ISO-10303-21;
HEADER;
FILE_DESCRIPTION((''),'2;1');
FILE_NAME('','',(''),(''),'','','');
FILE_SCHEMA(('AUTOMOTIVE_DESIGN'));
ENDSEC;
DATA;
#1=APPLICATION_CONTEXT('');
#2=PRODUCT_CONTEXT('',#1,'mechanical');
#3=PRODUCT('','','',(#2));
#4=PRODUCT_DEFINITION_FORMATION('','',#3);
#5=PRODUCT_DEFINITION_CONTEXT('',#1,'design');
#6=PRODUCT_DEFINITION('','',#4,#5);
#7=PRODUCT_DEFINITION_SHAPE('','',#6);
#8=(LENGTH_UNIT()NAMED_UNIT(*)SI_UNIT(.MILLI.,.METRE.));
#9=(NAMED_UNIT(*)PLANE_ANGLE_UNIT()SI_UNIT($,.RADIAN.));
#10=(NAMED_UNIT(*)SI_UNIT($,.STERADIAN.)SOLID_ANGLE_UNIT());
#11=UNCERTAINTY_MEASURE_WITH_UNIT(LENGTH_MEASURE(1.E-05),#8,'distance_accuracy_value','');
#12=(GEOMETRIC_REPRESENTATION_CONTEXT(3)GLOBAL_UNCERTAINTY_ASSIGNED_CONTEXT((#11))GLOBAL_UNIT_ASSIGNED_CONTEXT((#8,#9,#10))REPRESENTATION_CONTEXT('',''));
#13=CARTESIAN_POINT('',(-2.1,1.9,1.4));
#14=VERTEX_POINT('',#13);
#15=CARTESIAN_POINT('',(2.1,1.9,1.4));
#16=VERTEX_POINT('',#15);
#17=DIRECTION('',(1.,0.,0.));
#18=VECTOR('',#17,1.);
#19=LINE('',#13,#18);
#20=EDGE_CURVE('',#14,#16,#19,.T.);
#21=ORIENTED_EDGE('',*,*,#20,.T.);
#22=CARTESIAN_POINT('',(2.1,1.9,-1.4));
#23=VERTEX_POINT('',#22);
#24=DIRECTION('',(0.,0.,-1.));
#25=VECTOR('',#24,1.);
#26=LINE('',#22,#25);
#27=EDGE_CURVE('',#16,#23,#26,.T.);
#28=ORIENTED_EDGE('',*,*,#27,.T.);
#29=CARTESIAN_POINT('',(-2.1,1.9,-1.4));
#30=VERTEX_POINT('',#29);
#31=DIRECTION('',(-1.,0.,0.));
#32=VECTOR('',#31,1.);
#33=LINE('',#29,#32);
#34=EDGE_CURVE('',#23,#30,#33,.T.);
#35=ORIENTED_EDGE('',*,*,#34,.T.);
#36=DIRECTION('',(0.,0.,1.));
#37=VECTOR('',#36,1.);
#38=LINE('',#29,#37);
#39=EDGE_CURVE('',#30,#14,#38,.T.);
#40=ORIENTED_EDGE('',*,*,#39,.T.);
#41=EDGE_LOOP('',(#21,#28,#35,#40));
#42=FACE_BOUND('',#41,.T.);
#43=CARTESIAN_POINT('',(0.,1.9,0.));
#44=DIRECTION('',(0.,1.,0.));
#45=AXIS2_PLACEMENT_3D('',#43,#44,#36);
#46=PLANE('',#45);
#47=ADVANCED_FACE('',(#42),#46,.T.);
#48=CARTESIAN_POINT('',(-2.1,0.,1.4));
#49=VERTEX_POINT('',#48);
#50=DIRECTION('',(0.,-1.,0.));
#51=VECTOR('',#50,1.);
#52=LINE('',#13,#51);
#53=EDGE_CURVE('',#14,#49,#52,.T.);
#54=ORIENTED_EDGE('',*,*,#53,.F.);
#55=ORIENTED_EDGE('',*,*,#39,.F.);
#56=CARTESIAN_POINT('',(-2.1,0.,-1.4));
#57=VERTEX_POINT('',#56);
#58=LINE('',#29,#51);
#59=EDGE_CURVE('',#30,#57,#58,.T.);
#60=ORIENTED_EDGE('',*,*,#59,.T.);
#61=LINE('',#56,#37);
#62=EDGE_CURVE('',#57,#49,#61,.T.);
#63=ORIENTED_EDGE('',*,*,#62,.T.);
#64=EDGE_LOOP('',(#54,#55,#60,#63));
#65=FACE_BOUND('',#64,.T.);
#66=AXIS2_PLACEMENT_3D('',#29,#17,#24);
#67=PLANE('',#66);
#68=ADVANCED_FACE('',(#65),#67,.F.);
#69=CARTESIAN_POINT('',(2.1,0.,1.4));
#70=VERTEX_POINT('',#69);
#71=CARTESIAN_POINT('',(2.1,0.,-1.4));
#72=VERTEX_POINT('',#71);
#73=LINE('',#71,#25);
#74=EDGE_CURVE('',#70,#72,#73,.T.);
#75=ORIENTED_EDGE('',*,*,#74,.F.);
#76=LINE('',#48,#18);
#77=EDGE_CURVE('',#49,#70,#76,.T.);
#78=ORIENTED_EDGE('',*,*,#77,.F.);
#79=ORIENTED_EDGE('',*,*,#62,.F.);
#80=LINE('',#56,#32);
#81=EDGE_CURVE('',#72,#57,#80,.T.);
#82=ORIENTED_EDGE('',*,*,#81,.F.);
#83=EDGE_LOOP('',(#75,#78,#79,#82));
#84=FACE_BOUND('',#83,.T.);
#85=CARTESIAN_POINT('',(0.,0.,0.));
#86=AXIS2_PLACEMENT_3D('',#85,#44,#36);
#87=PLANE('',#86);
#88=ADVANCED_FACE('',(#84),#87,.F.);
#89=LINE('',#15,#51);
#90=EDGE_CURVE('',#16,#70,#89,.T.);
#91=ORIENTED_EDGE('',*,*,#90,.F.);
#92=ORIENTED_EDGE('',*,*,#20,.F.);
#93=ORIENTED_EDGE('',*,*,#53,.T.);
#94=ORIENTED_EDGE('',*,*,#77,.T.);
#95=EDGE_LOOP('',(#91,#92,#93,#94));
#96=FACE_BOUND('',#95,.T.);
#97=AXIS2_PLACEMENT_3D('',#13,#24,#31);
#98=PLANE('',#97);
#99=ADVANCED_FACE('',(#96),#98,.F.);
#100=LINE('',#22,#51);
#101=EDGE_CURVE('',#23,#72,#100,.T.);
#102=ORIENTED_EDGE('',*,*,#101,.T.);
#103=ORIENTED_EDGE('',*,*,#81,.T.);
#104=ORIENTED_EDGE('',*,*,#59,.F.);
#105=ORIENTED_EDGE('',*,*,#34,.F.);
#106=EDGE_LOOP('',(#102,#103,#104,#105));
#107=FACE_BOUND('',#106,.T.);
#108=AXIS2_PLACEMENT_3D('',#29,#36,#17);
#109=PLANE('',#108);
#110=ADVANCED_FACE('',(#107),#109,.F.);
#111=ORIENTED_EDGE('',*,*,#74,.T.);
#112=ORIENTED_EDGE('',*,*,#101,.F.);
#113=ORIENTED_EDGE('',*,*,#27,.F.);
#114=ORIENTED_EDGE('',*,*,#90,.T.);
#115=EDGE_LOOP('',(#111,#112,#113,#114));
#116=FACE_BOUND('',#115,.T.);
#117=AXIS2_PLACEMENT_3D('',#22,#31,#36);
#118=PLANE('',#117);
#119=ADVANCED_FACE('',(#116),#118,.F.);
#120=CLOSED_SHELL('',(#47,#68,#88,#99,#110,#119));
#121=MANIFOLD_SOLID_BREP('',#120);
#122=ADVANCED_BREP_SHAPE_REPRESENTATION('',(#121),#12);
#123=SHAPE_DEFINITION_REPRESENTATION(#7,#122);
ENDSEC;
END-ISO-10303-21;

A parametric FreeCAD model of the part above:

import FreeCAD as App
import Part
import Sketcher

doc = App.newDocument("Part")
body = doc.addObject("PartDesign::Body", "Body")

sketch1 = doc.addObject("Sketcher::SketchObject", "Sketch")
body.addObject(sketch1)
sketch1.AttachmentSupport = (doc.XZ_Plane, [""])
sketch1.MapMode = "FlatFace"
sketch1.addGeometry([
    Part.LineSegment(App.Vector(-2.1, -1.4, 0), App.Vector(-2.1, 1.4, 0)),
    Part.LineSegment(App.Vector(-2.1, 1.4, 0), App.Vector(2.1, 1.4, 0)),
    Part.LineSegment(App.Vector(2.1, 1.4, 0), App.Vector(2.1, -1.4, 0)),
    Part.LineSegment(App.Vector(2.1, -1.4, 0), App.Vector(-2.1, -1.4, 0)),
], False)
sketch1.addConstraint([
    Sketcher.Constraint("Coincident", 0, 2, 1, 1),
    Sketcher.Constraint("Coincident", 1, 2, 2, 1),
    Sketcher.Constraint("Coincident", 2, 2, 3, 1),
    Sketcher.Constraint("Coincident", 3, 2, 0, 1),
    Sketcher.Constraint("Vertical", 0),
    Sketcher.Constraint("Horizontal", 1),
    Sketcher.Constraint("Vertical", 2),
    Sketcher.Constraint("Horizontal", 3),
    Sketcher.Constraint("Symmetric", 0, 2, 2, 2, -1, 1),
    Sketcher.Constraint("DistanceX", 1, 1, 1, 2, 4.2),
    Sketcher.Constraint("DistanceY", 0, 1, 0, 2, 2.8),
])
pad1 = doc.addObject("PartDesign::Pad", "Pad")
body.addObject(pad1)
pad1.Profile = sketch1
pad1.Length = 1.9
pad1.Reversed = True

doc.recompute()
